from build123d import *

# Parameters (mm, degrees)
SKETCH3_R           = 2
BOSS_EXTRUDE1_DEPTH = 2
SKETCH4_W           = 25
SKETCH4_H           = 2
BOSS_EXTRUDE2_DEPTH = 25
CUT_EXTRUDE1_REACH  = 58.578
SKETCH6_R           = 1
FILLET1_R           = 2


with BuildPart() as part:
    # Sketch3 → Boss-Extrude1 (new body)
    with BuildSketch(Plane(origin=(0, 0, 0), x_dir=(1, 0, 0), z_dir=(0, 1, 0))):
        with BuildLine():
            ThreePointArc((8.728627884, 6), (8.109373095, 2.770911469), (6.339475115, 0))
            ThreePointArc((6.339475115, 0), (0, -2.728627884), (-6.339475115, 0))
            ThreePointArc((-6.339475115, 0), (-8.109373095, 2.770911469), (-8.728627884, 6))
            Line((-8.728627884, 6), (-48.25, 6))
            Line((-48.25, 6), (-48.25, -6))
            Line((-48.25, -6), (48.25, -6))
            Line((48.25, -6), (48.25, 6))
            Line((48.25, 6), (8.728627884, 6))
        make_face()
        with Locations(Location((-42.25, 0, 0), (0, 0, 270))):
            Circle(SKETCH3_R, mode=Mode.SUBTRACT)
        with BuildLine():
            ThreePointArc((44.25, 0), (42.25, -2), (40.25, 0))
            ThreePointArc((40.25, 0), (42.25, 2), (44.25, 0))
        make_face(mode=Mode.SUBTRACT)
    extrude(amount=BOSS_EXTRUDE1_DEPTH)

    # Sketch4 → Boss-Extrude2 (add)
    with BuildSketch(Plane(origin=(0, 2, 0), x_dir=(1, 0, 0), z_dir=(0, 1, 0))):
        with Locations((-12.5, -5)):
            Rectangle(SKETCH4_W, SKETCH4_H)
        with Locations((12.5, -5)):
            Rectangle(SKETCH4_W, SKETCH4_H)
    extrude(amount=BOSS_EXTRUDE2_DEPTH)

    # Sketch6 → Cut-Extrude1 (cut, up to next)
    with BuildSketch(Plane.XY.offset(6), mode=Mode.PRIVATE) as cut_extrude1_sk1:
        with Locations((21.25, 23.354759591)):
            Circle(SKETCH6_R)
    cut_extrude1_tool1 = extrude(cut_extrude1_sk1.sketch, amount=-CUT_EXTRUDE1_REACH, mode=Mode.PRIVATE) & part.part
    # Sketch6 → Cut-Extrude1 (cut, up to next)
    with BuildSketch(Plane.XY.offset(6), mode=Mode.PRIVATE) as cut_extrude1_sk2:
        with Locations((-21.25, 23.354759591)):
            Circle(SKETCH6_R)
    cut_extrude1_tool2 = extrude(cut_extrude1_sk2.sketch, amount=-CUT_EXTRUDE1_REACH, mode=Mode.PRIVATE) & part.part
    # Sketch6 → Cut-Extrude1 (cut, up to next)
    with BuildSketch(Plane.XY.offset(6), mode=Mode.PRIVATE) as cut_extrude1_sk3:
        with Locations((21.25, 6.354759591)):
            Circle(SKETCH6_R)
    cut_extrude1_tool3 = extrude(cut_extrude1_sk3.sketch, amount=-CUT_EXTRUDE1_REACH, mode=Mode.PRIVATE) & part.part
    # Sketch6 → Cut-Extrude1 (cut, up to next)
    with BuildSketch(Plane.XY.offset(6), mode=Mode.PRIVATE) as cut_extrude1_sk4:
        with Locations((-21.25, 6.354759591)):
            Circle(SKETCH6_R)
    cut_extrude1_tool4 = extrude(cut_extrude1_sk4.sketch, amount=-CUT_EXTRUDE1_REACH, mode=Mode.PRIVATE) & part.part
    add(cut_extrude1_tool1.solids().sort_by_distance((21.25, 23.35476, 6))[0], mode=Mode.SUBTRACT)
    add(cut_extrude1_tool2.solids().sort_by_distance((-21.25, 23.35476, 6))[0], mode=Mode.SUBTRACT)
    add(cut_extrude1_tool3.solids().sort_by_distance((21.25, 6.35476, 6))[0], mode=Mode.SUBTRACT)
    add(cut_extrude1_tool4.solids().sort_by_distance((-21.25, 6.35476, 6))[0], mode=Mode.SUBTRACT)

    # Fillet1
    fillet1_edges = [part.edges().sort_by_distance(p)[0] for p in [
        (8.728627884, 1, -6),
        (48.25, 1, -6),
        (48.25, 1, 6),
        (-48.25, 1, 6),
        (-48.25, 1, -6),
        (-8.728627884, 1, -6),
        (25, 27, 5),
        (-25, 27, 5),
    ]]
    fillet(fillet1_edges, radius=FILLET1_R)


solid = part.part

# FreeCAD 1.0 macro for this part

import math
import FreeCAD as App
import Part
import Sketcher
Q = App.Units.Quantity


def edges_at(feature, points):
    """Names of the edges that pass closest to the given points."""
    edges = feature.Shape.Edges
    near = lambda p: min(range(len(edges)), key=lambda i: edges[i].distToShape(Part.Vertex(*p))[0])
    return sorted({f"Edge{near(p) + 1}" for p in points})

doc = App.newDocument("Part")
body = doc.addObject("PartDesign::Body", "Body")

# Sketch on XZ plane
sketch1 = body.newObject("Sketcher::SketchObject", "Sketch")
sketch1.AttachmentSupport = (doc.getObject("XZ_Plane"), [""])
sketch1.MapMode = "FlatFace"
sketch1.addGeometry([
    Part.ArcOfCircle(Part.Circle(App.Vector(0, -6, 0), App.Vector(0, 0, 1), 8.7), math.radians(0), math.radians(43)),  # 0
    Part.ArcOfCircle(Part.Circle(App.Vector(0, -6, 0), App.Vector(0, 0, 1), 8.7), math.radians(43), math.radians(137)),  # 1
    Part.ArcOfCircle(Part.Circle(App.Vector(0, -6, 0), App.Vector(0, 0, 1), 8.7), math.radians(137), math.radians(180)),  # 2
    Part.LineSegment(App.Vector(-8.7, -6, 0), App.Vector(-48.2, -6, 0)),  # 3
    Part.LineSegment(App.Vector(-48.2, -6, 0), App.Vector(-48.2, 6, 0)),  # 4
    Part.LineSegment(App.Vector(-48.2, 6, 0), App.Vector(48.2, 6, 0)),  # 5
    Part.LineSegment(App.Vector(48.2, 6, 0), App.Vector(48.2, -6, 0)),  # 6
    Part.LineSegment(App.Vector(48.2, -6, 0), App.Vector(8.7, -6, 0)),  # 7
    Part.Circle(App.Vector(-42.2, 0, 0), App.Vector(0, 0, 1), 2),  # 8
    Part.Circle(App.Vector(42.2, 0, 0), App.Vector(0, 0, 1), 2),  # 9
], False)
sketch1.addConstraint([
    Sketcher.Constraint("Tangent", 0, 2, 1, 1),
    Sketcher.Constraint("Tangent", 1, 2, 2, 1),
    Sketcher.Constraint("Coincident", 2, 2, 3, 1),
    Sketcher.Constraint("Coincident", 3, 2, 4, 1),
    Sketcher.Constraint("Coincident", 4, 2, 5, 1),
    Sketcher.Constraint("Coincident", 5, 2, 6, 1),
    Sketcher.Constraint("Coincident", 6, 2, 7, 1),
    Sketcher.Constraint("Coincident", 7, 2, 0, 1),
    Sketcher.Constraint("Horizontal", 3),
    Sketcher.Constraint("Vertical", 4),
    Sketcher.Constraint("Horizontal", 5),
    Sketcher.Constraint("Vertical", 6),
    Sketcher.Constraint("Horizontal", 7),
    Sketcher.Constraint("Coincident", 2, 3, 0, 3),
    Sketcher.Constraint("Equal", 8, 9),
    Sketcher.Constraint("Symmetric", 8, 3, 9, 3, -1, 1),
    Sketcher.Constraint("Symmetric", 0, 2, 1, 2, -1, 1),
    Sketcher.Constraint("Symmetric", 3, 2, 5, 2, -1, 1),
    Sketcher.Constraint("Symmetric", 2, 2, 7, 2, -2),
    Sketcher.Constraint("PointOnObject", 8, 3, -1),
    Sketcher.Constraint("Horizontal", 1, 3, 2, 2),
    Sketcher.Constraint("Diameter", 8, Q("4 mm")),
    Sketcher.Constraint("DistanceY", 4, 1, 4, 2, Q("12 mm")),
    Sketcher.Constraint("DistanceX", 5, 1, 5, 2, Q("96.5 mm")),
    Sketcher.Constraint("DistanceX", 3, 2, 8, 3, Q("6 mm")),
    Sketcher.Constraint("Radius", 0, Q("8.728628 mm")),
])
pad1 = body.newObject("PartDesign::Pad", "Pad")
pad1.Profile = sketch1
pad1.Length = 2
pad1.Reversed = True

# Sketch on XZ plane
sketch2 = body.newObject("Sketcher::SketchObject", "Sketch001")
sketch2.AttachmentSupport = (doc.getObject("XZ_Plane"), [""])
sketch2.MapMode = "FlatFace"
sketch2.AttachmentOffset = App.Placement(App.Vector(0, 0, -2), App.Rotation())
sketch2.addGeometry([
    Part.LineSegment(App.Vector(-25, 4, 0), App.Vector(-25, 6, 0)),
    Part.LineSegment(App.Vector(-25, 6, 0), App.Vector(25, 6, 0)),
    Part.LineSegment(App.Vector(25, 6, 0), App.Vector(25, 4, 0)),
    Part.LineSegment(App.Vector(25, 4, 0), App.Vector(-25, 4, 0)),
], False)
sketch2.addConstraint([
    Sketcher.Constraint("Coincident", 0, 2, 1, 1),
    Sketcher.Constraint("Coincident", 1, 2, 2, 1),
    Sketcher.Constraint("Coincident", 2, 2, 3, 1),
    Sketcher.Constraint("Coincident", 3, 2, 0, 1),
    Sketcher.Constraint("Vertical", 0),
    Sketcher.Constraint("Horizontal", 1),
    Sketcher.Constraint("Vertical", 2),
    Sketcher.Constraint("Horizontal", 3),
    Sketcher.Constraint("DistanceX", 1, 1, 1, 2, Q("50 mm")),
    Sketcher.Constraint("DistanceY", 0, 1, 0, 2, Q("2 mm")),
    Sketcher.Constraint("DistanceX", 0, 2, -1, 1, Q("25 mm")),
    Sketcher.Constraint("DistanceY", -1, 1, 0, 2, Q("6 mm")),
])
pad2 = body.newObject("PartDesign::Pad", "Pad001")
pad2.Profile = sketch2
pad2.Length = 25
pad2.Reversed = True

# Sketch on XY plane
sketch3 = body.newObject("Sketcher::SketchObject", "Sketch002")
sketch3.AttachmentSupport = (doc.getObject("XY_Plane"), [""])
sketch3.MapMode = "FlatFace"
sketch3.AttachmentOffset = App.Placement(App.Vector(0, 0, 6), App.Rotation())
sketch3.addGeometry(Part.Circle(App.Vector(21.2, 23.4, 0), App.Vector(0, 0, 1), 1), False)
sketch3.addConstraint([
    Sketcher.Constraint("Diameter", 0, Q("2 mm")),
    Sketcher.Constraint("DistanceX", -1, 1, 0, 3, Q("21.25 mm")),
    Sketcher.Constraint("DistanceY", -1, 1, 0, 3, Q("23.35476 mm")),
])
pocket1 = body.newObject("PartDesign::Pocket", "Pocket")
pocket1.Profile = sketch3
pocket1.Type = "UpToFirst"

# Sketch on XY plane
sketch4 = body.newObject("Sketcher::SketchObject", "Sketch003")
sketch4.AttachmentSupport = (doc.getObject("XY_Plane"), [""])
sketch4.MapMode = "FlatFace"
sketch4.AttachmentOffset = App.Placement(App.Vector(0, 0, 6), App.Rotation())
sketch4.addGeometry(Part.Circle(App.Vector(-21.2, 23.4, 0), App.Vector(0, 0, 1), 1), False)
sketch4.addConstraint([
    Sketcher.Constraint("Diameter", 0, Q("2 mm")),
    Sketcher.Constraint("DistanceX", 0, 3, -1, 1, Q("21.25 mm")),
    Sketcher.Constraint("DistanceY", -1, 1, 0, 3, Q("23.35476 mm")),
])
pocket2 = body.newObject("PartDesign::Pocket", "Pocket001")
pocket2.Profile = sketch4
pocket2.Type = "UpToFirst"

# Sketch on XY plane
sketch5 = body.newObject("Sketcher::SketchObject", "Sketch004")
sketch5.AttachmentSupport = (doc.getObject("XY_Plane"), [""])
sketch5.MapMode = "FlatFace"
sketch5.AttachmentOffset = App.Placement(App.Vector(0, 0, 6), App.Rotation())
sketch5.addGeometry(Part.Circle(App.Vector(21.2, 6.4, 0), App.Vector(0, 0, 1), 1), False)
sketch5.addConstraint([
    Sketcher.Constraint("Diameter", 0, Q("2 mm")),
    Sketcher.Constraint("DistanceX", -1, 1, 0, 3, Q("21.25 mm")),
    Sketcher.Constraint("DistanceY", -1, 1, 0, 3, Q("6.35476 mm")),
])
pocket3 = body.newObject("PartDesign::Pocket", "Pocket002")
pocket3.Profile = sketch5
pocket3.Type = "UpToFirst"

# Sketch on XY plane
sketch6 = body.newObject("Sketcher::SketchObject", "Sketch005")
sketch6.AttachmentSupport = (doc.getObject("XY_Plane"), [""])
sketch6.MapMode = "FlatFace"
sketch6.AttachmentOffset = App.Placement(App.Vector(0, 0, 6), App.Rotation())
sketch6.addGeometry(Part.Circle(App.Vector(-21.2, 6.4, 0), App.Vector(0, 0, 1), 1), False)
sketch6.addConstraint([
    Sketcher.Constraint("Diameter", 0, Q("2 mm")),
    Sketcher.Constraint("DistanceX", 0, 3, -1, 1, Q("21.25 mm")),
    Sketcher.Constraint("DistanceY", -1, 1, 0, 3, Q("6.35476 mm")),
])
pocket4 = body.newObject("PartDesign::Pocket", "Pocket003")
pocket4.Profile = sketch6
pocket4.Type = "UpToFirst"
doc.recompute()

fillet = body.newObject("PartDesign::Fillet", "Fillet")
fillet.Base = (pocket4, edges_at(pocket4, [
    (8.729, 1, -6),
    (48.25, 1, -6),
    (48.25, 1, 6),
    (-48.25, 1, 6),
    (-48.25, 1, -6),
    (-8.729, 1, -6),
    (25, 27, 5),
    (-25, 27, 5),
]))
fillet.Radius = 2

doc.recompute()
